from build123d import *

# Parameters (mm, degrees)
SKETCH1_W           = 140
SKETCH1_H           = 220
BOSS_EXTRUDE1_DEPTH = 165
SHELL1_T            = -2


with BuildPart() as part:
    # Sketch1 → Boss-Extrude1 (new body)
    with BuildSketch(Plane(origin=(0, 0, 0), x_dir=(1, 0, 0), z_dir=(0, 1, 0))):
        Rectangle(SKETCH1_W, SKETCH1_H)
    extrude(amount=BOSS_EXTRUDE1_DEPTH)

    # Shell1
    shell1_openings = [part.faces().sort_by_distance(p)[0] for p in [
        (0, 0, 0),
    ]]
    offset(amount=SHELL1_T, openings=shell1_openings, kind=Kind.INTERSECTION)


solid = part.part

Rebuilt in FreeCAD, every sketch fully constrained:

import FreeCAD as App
import Part
import Sketcher

V = App.Vector


def faces_at(feature, points):
    """Names of the faces that lie closest to the given points."""
    faces = feature.Shape.Faces
    near = lambda p: min(range(len(faces)), key=lambda i: faces[i].distToShape(Part.Vertex(*p))[0])
    return sorted({f"Face{near(p) + 1}" for p in points})


def add_polygon(sketch, points):
    """Adds a closed chain of lines whose ends are joined by coincident constraints."""
    first, n = sketch.GeometryCount, len(points)
    for a, b in zip(points, points[1:] + points[:1]):
        sketch.addGeometry(Part.LineSegment(App.Vector(*a, 0), App.Vector(*b, 0)), False)
    for i in range(n):
        sketch.addConstraint(Sketcher.Constraint("Coincident", first + i, 2, first + (i + 1) % n, 1))

doc = App.newDocument("Part")
body = doc.addObject("PartDesign::Body", "Body")

sketch1 = doc.addObject("Sketcher::SketchObject", "Sketch")
body.addObject(sketch1)
sketch1.AttachmentSupport = (doc.XZ_Plane, [""])
sketch1.MapMode = "FlatFace"
add_polygon(sketch1, [(-70, -110), (-70, 110), (70, 110), (70, -110)])
sketch1.addConstraint(Sketcher.Constraint("Vertical", 0))
sketch1.addConstraint(Sketcher.Constraint("Horizontal", 1))
sketch1.addConstraint(Sketcher.Constraint("Vertical", 2))
sketch1.addConstraint(Sketcher.Constraint("Horizontal", 3))
sketch1.addConstraint(Sketcher.Constraint("Symmetric", 0, 2, 2, 2, -1, 1))
sketch1.addConstraint(Sketcher.Constraint("DistanceX", 1, 1, 1, 2, 140.0))
sketch1.addConstraint(Sketcher.Constraint("DistanceY", 0, 1, 0, 2, 220.0))
pad1 = doc.addObject("PartDesign::Pad", "Pad")
body.addObject(pad1)
pad1.Profile = sketch1
pad1.Length = 165
pad1.Reversed = True
doc.recompute()

thickness = doc.addObject("PartDesign::Thickness", "Thickness")
body.addObject(thickness)
thickness.Base = (pad1, faces_at(pad1, [(0, 0, 0)]))
thickness.Value = 2
thickness.Reversed = True
thickness.Join = "Intersection"

doc.recompute()
